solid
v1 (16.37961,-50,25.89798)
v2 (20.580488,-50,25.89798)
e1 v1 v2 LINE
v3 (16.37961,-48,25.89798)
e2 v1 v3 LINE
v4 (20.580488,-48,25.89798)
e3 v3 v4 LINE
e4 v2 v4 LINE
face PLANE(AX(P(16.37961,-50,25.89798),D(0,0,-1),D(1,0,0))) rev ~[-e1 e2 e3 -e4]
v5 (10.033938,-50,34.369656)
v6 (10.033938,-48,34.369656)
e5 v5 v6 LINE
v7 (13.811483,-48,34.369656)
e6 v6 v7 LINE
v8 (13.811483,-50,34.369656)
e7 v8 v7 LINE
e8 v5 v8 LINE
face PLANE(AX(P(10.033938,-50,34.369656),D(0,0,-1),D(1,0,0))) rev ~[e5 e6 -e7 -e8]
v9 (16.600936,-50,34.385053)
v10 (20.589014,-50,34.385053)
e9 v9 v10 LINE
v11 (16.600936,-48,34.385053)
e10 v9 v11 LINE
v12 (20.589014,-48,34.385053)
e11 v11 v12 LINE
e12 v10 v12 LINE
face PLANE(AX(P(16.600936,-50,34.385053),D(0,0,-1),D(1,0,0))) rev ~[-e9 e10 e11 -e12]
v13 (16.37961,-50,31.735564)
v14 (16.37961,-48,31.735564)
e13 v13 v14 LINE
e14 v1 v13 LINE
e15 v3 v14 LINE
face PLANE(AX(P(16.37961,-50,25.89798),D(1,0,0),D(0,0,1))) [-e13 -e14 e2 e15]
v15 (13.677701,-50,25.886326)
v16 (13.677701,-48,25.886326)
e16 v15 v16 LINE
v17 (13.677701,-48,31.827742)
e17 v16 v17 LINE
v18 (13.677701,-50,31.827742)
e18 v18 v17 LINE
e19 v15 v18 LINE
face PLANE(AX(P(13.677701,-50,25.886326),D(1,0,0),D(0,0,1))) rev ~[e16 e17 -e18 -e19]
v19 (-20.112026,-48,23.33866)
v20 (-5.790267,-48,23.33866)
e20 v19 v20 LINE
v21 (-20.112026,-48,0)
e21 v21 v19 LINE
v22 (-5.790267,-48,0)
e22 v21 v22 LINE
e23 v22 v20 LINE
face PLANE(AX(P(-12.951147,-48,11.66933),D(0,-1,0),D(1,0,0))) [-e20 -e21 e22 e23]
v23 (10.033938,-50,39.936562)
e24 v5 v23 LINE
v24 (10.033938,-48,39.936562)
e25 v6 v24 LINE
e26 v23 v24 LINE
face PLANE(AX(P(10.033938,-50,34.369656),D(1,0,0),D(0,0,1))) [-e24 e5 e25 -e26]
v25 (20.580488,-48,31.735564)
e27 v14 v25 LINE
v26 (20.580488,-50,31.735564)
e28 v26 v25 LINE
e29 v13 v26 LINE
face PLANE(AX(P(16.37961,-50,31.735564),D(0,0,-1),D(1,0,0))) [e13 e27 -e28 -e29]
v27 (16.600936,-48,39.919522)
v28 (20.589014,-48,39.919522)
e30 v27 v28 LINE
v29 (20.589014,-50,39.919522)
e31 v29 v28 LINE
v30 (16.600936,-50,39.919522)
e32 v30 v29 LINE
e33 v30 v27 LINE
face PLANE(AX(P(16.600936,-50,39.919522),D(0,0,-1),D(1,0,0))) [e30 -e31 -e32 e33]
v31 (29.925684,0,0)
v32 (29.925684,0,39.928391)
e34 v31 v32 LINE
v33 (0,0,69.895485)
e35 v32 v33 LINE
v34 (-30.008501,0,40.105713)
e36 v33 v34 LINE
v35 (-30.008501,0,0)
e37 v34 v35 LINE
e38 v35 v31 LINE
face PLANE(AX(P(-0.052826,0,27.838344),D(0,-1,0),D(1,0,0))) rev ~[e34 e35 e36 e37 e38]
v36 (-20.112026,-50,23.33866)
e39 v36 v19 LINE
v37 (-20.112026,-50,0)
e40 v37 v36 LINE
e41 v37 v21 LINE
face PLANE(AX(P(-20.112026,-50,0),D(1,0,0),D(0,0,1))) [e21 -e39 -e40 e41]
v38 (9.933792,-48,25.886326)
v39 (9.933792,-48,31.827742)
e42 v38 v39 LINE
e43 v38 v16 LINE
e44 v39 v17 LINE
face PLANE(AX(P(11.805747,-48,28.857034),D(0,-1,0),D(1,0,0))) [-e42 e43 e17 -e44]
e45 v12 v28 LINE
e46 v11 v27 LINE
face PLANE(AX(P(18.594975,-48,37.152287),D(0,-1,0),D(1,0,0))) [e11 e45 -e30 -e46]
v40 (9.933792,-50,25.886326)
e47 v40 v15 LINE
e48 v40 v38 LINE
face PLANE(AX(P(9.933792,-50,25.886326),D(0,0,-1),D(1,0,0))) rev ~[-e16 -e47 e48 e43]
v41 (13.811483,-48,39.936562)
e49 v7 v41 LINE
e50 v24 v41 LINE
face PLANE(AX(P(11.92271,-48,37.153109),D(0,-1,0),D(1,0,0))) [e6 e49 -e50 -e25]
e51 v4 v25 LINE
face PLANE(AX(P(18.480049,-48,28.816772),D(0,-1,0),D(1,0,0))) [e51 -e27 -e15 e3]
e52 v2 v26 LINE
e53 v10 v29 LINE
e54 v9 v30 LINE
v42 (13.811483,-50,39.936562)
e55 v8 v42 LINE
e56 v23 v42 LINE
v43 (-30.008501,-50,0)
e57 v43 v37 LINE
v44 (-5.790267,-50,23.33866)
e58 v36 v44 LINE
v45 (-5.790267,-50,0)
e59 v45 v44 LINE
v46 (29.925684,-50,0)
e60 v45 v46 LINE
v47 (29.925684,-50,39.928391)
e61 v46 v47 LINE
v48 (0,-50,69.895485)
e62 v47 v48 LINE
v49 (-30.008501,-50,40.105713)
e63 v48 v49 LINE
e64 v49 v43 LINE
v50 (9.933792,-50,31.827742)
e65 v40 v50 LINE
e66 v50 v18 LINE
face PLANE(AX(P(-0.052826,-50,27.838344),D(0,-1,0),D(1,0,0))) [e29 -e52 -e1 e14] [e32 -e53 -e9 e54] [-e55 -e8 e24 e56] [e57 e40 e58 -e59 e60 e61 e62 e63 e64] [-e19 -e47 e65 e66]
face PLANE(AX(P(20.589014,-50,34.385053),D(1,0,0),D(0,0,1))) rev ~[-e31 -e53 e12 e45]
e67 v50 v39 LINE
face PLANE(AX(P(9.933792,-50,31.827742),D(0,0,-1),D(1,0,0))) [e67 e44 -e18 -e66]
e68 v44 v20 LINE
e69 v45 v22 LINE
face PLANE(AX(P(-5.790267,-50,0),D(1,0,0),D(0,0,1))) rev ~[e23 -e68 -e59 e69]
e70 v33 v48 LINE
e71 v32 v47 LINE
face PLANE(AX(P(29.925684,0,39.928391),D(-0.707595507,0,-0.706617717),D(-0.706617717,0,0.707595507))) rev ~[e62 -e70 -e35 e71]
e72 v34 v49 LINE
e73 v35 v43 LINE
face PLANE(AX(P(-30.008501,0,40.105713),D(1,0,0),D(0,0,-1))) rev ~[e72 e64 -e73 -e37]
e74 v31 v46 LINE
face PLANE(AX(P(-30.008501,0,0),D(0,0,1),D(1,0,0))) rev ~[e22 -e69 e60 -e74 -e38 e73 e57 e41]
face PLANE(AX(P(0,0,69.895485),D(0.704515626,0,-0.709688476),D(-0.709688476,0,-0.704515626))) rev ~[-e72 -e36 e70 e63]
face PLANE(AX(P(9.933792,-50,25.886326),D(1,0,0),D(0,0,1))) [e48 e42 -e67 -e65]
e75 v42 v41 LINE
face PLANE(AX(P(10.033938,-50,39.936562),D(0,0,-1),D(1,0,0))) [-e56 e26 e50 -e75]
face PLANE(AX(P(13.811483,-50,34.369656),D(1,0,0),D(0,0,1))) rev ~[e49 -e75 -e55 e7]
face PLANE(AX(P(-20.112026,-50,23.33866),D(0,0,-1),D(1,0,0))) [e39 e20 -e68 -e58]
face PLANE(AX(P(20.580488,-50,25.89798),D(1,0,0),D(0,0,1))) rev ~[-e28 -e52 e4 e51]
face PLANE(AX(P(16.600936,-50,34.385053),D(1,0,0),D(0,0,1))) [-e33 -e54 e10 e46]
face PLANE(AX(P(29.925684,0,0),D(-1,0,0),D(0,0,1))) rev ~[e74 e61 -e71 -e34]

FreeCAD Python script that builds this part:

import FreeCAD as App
import Part
import Sketcher

V = App.Vector
Q = App.Units.Quantity


def add_polygon(sketch, points):
    """Adds a closed chain of lines whose ends are joined by coincident constraints."""
    first, n = sketch.GeometryCount, len(points)
    for a, b in zip(points, points[1:] + points[:1]):
        sketch.addGeometry(Part.LineSegment(App.Vector(*a, 0), App.Vector(*b, 0)), False)
    for i in range(n):
        sketch.addConstraint(Sketcher.Constraint("Coincident", first + i, 2, first + (i + 1) % n, 1))

doc = App.newDocument("Part")
params = doc.addObject("Spreadsheet::Sheet", "Params")
for row, (alias, value) in enumerate([
    ("pad1_length", "50 mm"),
    ("pocket1_length", "2 mm"),
    ("pocket2_length", "2 mm"),
    ("pocket3_length", "2 mm"),
    ("pocket4_length", "2 mm"),
    ("pocket5_length", "2 mm"),
], start=1):
    params.set(f"A{row}", alias)
    params.set(f"B{row}", "=" + value)
    params.setAlias(f"B{row}", alias)

body = doc.addObject("PartDesign::Body", "Body")

# Sketch on XY plane
sketch1 = doc.addObject("Sketcher::SketchObject", "Sketch")
body.addObject(sketch1)
sketch1.AttachmentSupport = (doc.XY_Plane, [""])
sketch1.MapMode = "FlatFace"
add_polygon(sketch1, [(-30.008501, 0), (29.925684, 0), (29.925684, 39.928391), (0, 69.895485), (-30.008501, 40.105713)])  # lines 0-4
sketch1.addConstraint(Sketcher.Constraint("Horizontal", 0))
sketch1.addConstraint(Sketcher.Constraint("Vertical", 1))
sketch1.addConstraint(Sketcher.Constraint("Vertical", 4))
sketch1.addConstraint(Sketcher.Constraint("PointOnObject", 0, 2, -1))
sketch1.addConstraint(Sketcher.Constraint("PointOnObject", 2, 2, -2))
sketch1.addConstraint(Sketcher.Constraint("Distance", 2, Q("42.3506 mm")))
sketch1.addConstraint(Sketcher.Constraint("DistanceY", 1, 1, 1, 2, Q("39.928391 mm")))
sketch1.addConstraint(Sketcher.Constraint("DistanceX", 3, 2, -1, 1, Q("30.008501 mm")))
sketch1.addConstraint(Sketcher.Constraint("DistanceX", 0, 1, 0, 2, Q("59.934185 mm")))
sketch1.addConstraint(Sketcher.Constraint("DistanceY", 4, 2, 4, 1, Q("40.105713 mm")))
pad1 = doc.addObject("PartDesign::Pad", "Pad")
body.addObject(pad1)
pad1.Profile = sketch1
pad1.setExpression("Length", "Params.pad1_length")

# Sketch on XY plane
sketch2 = doc.addObject("Sketcher::SketchObject", "Sketch001")
body.addObject(sketch2)
sketch2.AttachmentSupport = (doc.XY_Plane, [""])
sketch2.MapMode = "FlatFace"
sketch2.AttachmentOffset = App.Placement(V(0, 0, 50), App.Rotation())
add_polygon(sketch2, [(-20.112026, 23.33866), (-20.112026, 0), (-5.790267, 0), (-5.790267, 23.33866)])  # lines 0-3
sketch2.addConstraint(Sketcher.Constraint("Vertical", 0))
sketch2.addConstraint(Sketcher.Constraint("Horizontal", 1))
sketch2.addConstraint(Sketcher.Constraint("Vertical", 2))
sketch2.addConstraint(Sketcher.Constraint("Horizontal", 3))
sketch2.addConstraint(Sketcher.Constraint("PointOnObject", 0, 2, -1))
sketch2.addConstraint(Sketcher.Constraint("DistanceX", 1, 1, 1, 2, Q("14.321759 mm")))
sketch2.addConstraint(Sketcher.Constraint("DistanceY", 0, 2, 0, 1, Q("23.338661 mm")))
sketch2.addConstraint(Sketcher.Constraint("DistanceX", 0, 2, -1, 1, Q("20.112026 mm")))
pocket1 = doc.addObject("PartDesign::Pocket", "Pocket")
body.addObject(pocket1)
pocket1.Profile = sketch2
pocket1.setExpression("Length", "Params.pocket1_length")

# Sketch on XY plane
sketch3 = doc.addObject("Sketcher::SketchObject", "Sketch002")
body.addObject(sketch3)
sketch3.AttachmentSupport = (doc.XY_Plane, [""])
sketch3.MapMode = "FlatFace"
sketch3.AttachmentOffset = App.Placement(V(0, 0, 50), App.Rotation())
add_polygon(sketch3, [(10.033938, 39.936562), (10.033938, 34.369656), (13.811483, 34.369656), (13.811483, 39.936562)])  # lines 0-3
sketch3.addConstraint(Sketcher.Constraint("Vertical", 0))
sketch3.addConstraint(Sketcher.Constraint("Horizontal", 1))
sketch3.addConstraint(Sketcher.Constraint("Vertical", 2))
sketch3.addConstraint(Sketcher.Constraint("Horizontal", 3))
sketch3.addConstraint(Sketcher.Constraint("DistanceX", 1, 1, 1, 2, Q("3.777545 mm")))
sketch3.addConstraint(Sketcher.Constraint("DistanceY", 0, 2, 0, 1, Q("5.566906 mm")))
sketch3.addConstraint(Sketcher.Constraint("DistanceX", -1, 1, 0, 2, Q("10.033938 mm")))
sketch3.addConstraint(Sketcher.Constraint("DistanceY", -1, 1, 0, 2, Q("34.369656 mm")))
pocket2 = doc.addObject("PartDesign::Pocket", "Pocket001")
body.addObject(pocket2)
pocket2.Profile = sketch3
pocket2.setExpression("Length", "Params.pocket2_length")

# Sketch on XY plane
sketch4 = doc.addObject("Sketcher::SketchObject", "Sketch003")
body.addObject(sketch4)
sketch4.AttachmentSupport = (doc.XY_Plane, [""])
sketch4.MapMode = "FlatFace"
sketch4.AttachmentOffset = App.Placement(V(0, 0, 50), App.Rotation())
add_polygon(sketch4, [(16.600936, 39.919522), (16.600936, 34.385053), (20.589014, 34.385053), (20.589014, 39.919522)])  # lines 0-3
sketch4.addConstraint(Sketcher.Constraint("Vertical", 0))
sketch4.addConstraint(Sketcher.Constraint("Horizontal", 1))
sketch4.addConstraint(Sketcher.Constraint("Vertical", 2))
sketch4.addConstraint(Sketcher.Constraint("Horizontal", 3))
sketch4.addConstraint(Sketcher.Constraint("DistanceY", 0, 2, 0, 1, Q("5.534469 mm")))
sketch4.addConstraint(Sketcher.Constraint("DistanceX", 1, 1, 1, 2, Q("3.988077 mm")))
sketch4.addConstraint(Sketcher.Constraint("DistanceY", -1, 1, 2, 2, Q("39.919522 mm")))
sketch4.addConstraint(Sketcher.Constraint("DistanceX", -1, 1, 0, 2, Q("16.600936 mm")))
pocket3 = doc.addObject("PartDesign::Pocket", "Pocket002")
body.addObject(pocket3)
pocket3.Profile = sketch4
pocket3.setExpression("Length", "Params.pocket3_length")

# Sketch on XY plane
sketch5 = doc.addObject("Sketcher::SketchObject", "Sketch004")
body.addObject(sketch5)
sketch5.AttachmentSupport = (doc.XY_Plane, [""])
sketch5.MapMode = "FlatFace"
sketch5.AttachmentOffset = App.Placement(V(0, 0, 50), App.Rotation())
add_polygon(sketch5, [(9.933792, 31.827742), (9.933792, 25.886326), (13.677701, 25.886326), (13.677701, 31.827742)])  # lines 0-3
sketch5.addConstraint(Sketcher.Constraint("Vertical", 0))
sketch5.addConstraint(Sketcher.Constraint("Horizontal", 1))
sketch5.addConstraint(Sketcher.Constraint("Vertical", 2))
sketch5.addConstraint(Sketcher.Constraint("Horizontal", 3))
sketch5.addConstraint(Sketcher.Constraint("DistanceX", 1, 1, 1, 2, Q("3.743909 mm")))
sketch5.addConstraint(Sketcher.Constraint("DistanceX", -1, 1, 1, 2, Q("13.677701 mm")))
sketch5.addConstraint(Sketcher.Constraint("DistanceY", 0, 2, 0, 1, Q("5.941416 mm")))
sketch5.addConstraint(Sketcher.Constraint("DistanceY", -1, 1, 0, 2, Q("25.886326 mm")))
pocket4 = doc.addObject("PartDesign::Pocket", "Pocket003")
body.addObject(pocket4)
pocket4.Profile = sketch5
pocket4.setExpression("Length", "Params.pocket4_length")

# Sketch on XY plane
sketch6 = doc.addObject("Sketcher::SketchObject", "Sketch005")
body.addObject(sketch6)
sketch6.AttachmentSupport = (doc.XY_Plane, [""])
sketch6.MapMode = "FlatFace"
sketch6.AttachmentOffset = App.Placement(V(0, 0, 50), App.Rotation())
add_polygon(sketch6, [(16.37961, 31.735564), (16.37961, 25.89798), (20.580488, 25.89798), (20.580488, 31.735564)])  # lines 0-3
sketch6.addConstraint(Sketcher.Constraint("Vertical", 0))
sketch6.addConstraint(Sketcher.Constraint("Horizontal", 1))
sketch6.addConstraint(Sketcher.Constraint("Vertical", 2))
sketch6.addConstraint(Sketcher.Constraint("Horizontal", 3))
sketch6.addConstraint(Sketcher.Constraint("DistanceX", 1, 1, 1, 2, Q("4.200878 mm")))
sketch6.addConstraint(Sketcher.Constraint("DistanceY", 0, 2, 0, 1, Q("5.837583 mm")))
sketch6.addConstraint(Sketcher.Constraint("DistanceX", -1, 1, 0, 2, Q("16.37961 mm")))
sketch6.addConstraint(Sketcher.Constraint("DistanceY", -1, 1, 0, 2, Q("25.89798 mm")))
pocket5 = doc.addObject("PartDesign::Pocket", "Pocket004")
body.addObject(pocket5)
pocket5.Profile = sketch6
pocket5.setExpression("Length", "Params.pocket5_length")
body2 = doc.addObject("PartDesign::Body", "Body001")
doc.recompute()

body.Placement = App.Placement(V(0, 0, 0), App.Rotation(V(1, 0, 0), 90))
boolean = doc.addObject("PartDesign::Boolean", "Boolean")
body2.addObject(boolean)
boolean.Type = "Fuse"
boolean.addObjects([body])

doc.recompute()
